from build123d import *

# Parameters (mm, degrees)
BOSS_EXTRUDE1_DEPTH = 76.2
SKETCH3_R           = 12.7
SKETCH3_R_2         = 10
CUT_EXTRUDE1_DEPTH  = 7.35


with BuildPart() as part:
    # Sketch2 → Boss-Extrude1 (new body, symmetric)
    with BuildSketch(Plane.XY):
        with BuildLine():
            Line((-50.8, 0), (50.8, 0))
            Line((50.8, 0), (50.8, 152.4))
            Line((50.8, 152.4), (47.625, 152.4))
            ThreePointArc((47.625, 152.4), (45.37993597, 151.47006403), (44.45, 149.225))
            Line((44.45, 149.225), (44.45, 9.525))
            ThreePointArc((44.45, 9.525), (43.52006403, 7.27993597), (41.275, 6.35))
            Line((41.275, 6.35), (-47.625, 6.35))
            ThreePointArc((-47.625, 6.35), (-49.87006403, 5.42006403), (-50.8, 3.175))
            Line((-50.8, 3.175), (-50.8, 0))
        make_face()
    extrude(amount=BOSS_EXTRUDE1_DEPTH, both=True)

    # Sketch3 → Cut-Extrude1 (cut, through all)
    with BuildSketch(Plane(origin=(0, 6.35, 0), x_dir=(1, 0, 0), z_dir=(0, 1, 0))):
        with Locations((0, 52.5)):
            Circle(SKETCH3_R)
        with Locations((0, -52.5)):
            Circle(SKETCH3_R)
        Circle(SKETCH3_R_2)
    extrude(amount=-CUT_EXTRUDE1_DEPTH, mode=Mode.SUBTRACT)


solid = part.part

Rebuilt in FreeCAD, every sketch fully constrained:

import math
import FreeCAD as App
import Part
import Sketcher
Q = App.Units.Quantity

doc = App.newDocument("Part")
body = doc.addObject("PartDesign::Body", "Body")

sketch1 = doc.addObject("Sketcher::SketchObject", "Sketch")
body.addObject(sketch1)
sketch1.AttachmentSupport = (doc.XY_Plane, [""])
sketch1.MapMode = "FlatFace"
sketch1.addGeometry([
    Part.LineSegment(App.Vector(-50.8, 0, 0), App.Vector(50.8, 0, 0)),
    Part.LineSegment(App.Vector(50.8, 0, 0), App.Vector(50.8, 152.4, 0)),
    Part.LineSegment(App.Vector(50.8, 152.4, 0), App.Vector(47.6, 152.4, 0)),
    Part.ArcOfCircle(Part.Circle(App.Vector(47.6, 149.2, 0), App.Vector(0, 0, 1), 3.2), math.radians(90), math.radians(180)),
    Part.LineSegment(App.Vector(44.5, 149.2, 0), App.Vector(44.5, 9.5, 0)),
    Part.ArcOfCircle(Part.Circle(App.Vector(41.3, 9.5, 0), App.Vector(0, 0, 1), 3.2), math.radians(-90), math.radians(0)),
    Part.LineSegment(App.Vector(41.3, 6.3, 0), App.Vector(-47.6, 6.3, 0)),
    Part.ArcOfCircle(Part.Circle(App.Vector(-47.6, 3.2, 0), App.Vector(0, 0, 1), 3.2), math.radians(90), math.radians(180)),
    Part.LineSegment(App.Vector(-50.8, 3.2, 0), App.Vector(-50.8, 0, 0)),
], False)
sketch1.addConstraint([
    Sketcher.Constraint("Coincident", 0, 2, 1, 1),
    Sketcher.Constraint("Coincident", 1, 2, 2, 1),
    Sketcher.Constraint("Tangent", 2, 2, 3, 1),
    Sketcher.Constraint("Tangent", 3, 2, 4, 1),
    Sketcher.Constraint("Tangent", 4, 2, 5, 2),
    Sketcher.Constraint("Tangent", 5, 1, 6, 1),
    Sketcher.Constraint("Tangent", 6, 2, 7, 1),
    Sketcher.Constraint("Tangent", 7, 2, 8, 1),
    Sketcher.Constraint("Coincident", 8, 2, 0, 1),
    Sketcher.Constraint("Horizontal", 0),
    Sketcher.Constraint("Vertical", 1),
    Sketcher.Constraint("Horizontal", 2),
    Sketcher.Constraint("Vertical", 4),
    Sketcher.Constraint("Horizontal", 6),
    Sketcher.Constraint("Vertical", 8),
    Sketcher.Constraint("Equal", 3, 5),
    Sketcher.Constraint("Equal", 5, 7),
    Sketcher.Constraint("Symmetric", 0, 2, 8, 2, -1, 1),
    Sketcher.Constraint("Equal", 2, 8),
    Sketcher.Constraint("DistanceX", 0, 1, 0, 2, Q("4 in")),
    Sketcher.Constraint("DistanceY", 1, 1, 1, 2, Q("6 in")),
    Sketcher.Constraint("DistanceX", 6, 2, 6, 1, Q("3.5 in")),
    Sketcher.Constraint("Radius", 3, Q("0.125 in")),
])
pad1 = doc.addObject("PartDesign::Pad", "Pad")
body.addObject(pad1)
pad1.Profile = sketch1
pad1.Length = Q("6 in")
pad1.Midplane = True

sketch2 = doc.addObject("Sketcher::SketchObject", "Sketch001")
body.addObject(sketch2)
sketch2.AttachmentSupport = (doc.XZ_Plane, [""])
sketch2.MapMode = "FlatFace"
sketch2.AttachmentOffset = App.Placement(App.Vector(0, 0, -0.25 * 25.4), App.Rotation())
sketch2.addGeometry([
    Part.Circle(App.Vector(0, -52, 0), App.Vector(0, 0, 1), 13),
    Part.Circle(App.Vector(0, 52, 0), App.Vector(0, 0, 1), 13),
    Part.Circle(App.Vector(0, 0, 0), App.Vector(0, 0, 1), 10),
], False)
sketch2.addConstraint([
    Sketcher.Constraint("Coincident", 2, 3, -1, 1),
    Sketcher.Constraint("Equal", 0, 1),
    Sketcher.Constraint("Symmetric", 0, 3, 1, 3, -1, 1),
    Sketcher.Constraint("PointOnObject", 0, 3, -2),
    Sketcher.Constraint("Diameter", 0, Q("1 in")),
    Sketcher.Constraint("Diameter", 2, Q("20 mm")),
    Sketcher.Constraint("DistanceY", 0, 3, -1, 1, Q("52.5 mm")),
])
pocket1 = doc.addObject("PartDesign::Pocket", "Pocket")
body.addObject(pocket1)
pocket1.Profile = sketch2
pocket1.Type = "ThroughAll"
pocket1.Reversed = True

doc.recompute()
